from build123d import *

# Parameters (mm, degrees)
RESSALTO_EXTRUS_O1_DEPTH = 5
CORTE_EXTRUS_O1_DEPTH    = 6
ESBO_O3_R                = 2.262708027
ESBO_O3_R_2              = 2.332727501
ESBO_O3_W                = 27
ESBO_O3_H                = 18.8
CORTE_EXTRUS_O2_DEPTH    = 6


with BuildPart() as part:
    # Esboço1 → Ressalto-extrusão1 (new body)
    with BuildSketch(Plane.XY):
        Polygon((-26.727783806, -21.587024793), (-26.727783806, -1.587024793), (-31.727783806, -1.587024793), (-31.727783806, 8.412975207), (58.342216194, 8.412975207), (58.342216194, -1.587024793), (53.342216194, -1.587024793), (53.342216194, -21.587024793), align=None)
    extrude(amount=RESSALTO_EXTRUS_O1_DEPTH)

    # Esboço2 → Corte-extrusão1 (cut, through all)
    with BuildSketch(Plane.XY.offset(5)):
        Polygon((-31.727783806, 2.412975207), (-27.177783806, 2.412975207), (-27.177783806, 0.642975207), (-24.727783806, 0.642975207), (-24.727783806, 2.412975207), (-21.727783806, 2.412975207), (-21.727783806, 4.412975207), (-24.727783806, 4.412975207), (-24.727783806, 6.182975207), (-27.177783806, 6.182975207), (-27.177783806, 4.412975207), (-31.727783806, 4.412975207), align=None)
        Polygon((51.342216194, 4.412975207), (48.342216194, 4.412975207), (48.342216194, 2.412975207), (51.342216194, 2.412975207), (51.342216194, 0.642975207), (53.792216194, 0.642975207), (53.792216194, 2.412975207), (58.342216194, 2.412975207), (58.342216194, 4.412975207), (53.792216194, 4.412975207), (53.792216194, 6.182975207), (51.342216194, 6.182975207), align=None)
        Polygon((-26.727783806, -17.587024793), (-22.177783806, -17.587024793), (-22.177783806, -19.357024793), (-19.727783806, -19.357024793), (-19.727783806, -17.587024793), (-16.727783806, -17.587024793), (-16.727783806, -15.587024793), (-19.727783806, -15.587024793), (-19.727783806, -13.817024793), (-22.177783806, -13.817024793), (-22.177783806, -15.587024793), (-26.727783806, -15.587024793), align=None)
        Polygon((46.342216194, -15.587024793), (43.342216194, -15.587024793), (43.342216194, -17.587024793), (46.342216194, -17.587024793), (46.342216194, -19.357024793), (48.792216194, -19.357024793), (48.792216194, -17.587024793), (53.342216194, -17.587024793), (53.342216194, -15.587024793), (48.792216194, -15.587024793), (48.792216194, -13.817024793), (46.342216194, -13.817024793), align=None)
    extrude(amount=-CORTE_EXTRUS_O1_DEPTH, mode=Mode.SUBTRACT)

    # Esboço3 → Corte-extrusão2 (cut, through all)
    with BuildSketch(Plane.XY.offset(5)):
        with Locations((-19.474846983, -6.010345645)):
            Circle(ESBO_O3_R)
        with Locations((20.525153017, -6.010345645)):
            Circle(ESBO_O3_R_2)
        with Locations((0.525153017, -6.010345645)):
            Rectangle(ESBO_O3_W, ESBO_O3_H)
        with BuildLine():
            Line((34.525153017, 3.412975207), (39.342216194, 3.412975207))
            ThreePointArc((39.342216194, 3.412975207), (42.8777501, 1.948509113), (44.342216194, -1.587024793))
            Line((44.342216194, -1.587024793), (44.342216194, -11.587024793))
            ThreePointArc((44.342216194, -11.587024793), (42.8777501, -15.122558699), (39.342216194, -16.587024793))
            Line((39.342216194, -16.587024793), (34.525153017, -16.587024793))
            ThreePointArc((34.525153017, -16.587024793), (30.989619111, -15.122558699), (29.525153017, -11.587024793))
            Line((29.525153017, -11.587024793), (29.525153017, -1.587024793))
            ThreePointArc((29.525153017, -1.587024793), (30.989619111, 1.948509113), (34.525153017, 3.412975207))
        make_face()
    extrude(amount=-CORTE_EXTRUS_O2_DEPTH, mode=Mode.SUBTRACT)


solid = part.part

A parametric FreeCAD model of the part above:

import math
import FreeCAD as App
import Part
import Sketcher
from FreeCAD import Vector
Q = App.Units.Quantity


def add_polygon(sketch, points):
    """Adds a closed chain of lines whose ends are joined by coincident constraints."""
    first, n = sketch.GeometryCount, len(points)
    for a, b in zip(points, points[1:] + points[:1]):
        sketch.addGeometry(Part.LineSegment(App.Vector(*a, 0), App.Vector(*b, 0)), False)
    for i in range(n):
        sketch.addConstraint(Sketcher.Constraint("Coincident", first + i, 2, first + (i + 1) % n, 1))

doc = App.newDocument("Part")
body = doc.addObject("PartDesign::Body", "Body")

# Sketch on XY plane
sketch1 = body.newObject("Sketcher::SketchObject", "Sketch")
sketch1.AttachmentSupport = (doc.getObject("XY_Plane"), [""])
sketch1.MapMode = "FlatFace"
add_polygon(sketch1, [(-26.727784, -1.587025), (-26.727784, -21.587025), (53.342216, -21.587025), (53.342216, -1.587025), (58.342216, -1.587025), (58.342216, 8.412975), (-31.727784, 8.412975), (-31.727784, -1.587025)])  # lines 0-7
sketch1.addConstraint([
    Sketcher.Constraint("Vertical", 0),
    Sketcher.Constraint("Horizontal", 1),
    Sketcher.Constraint("Vertical", 2),
    Sketcher.Constraint("Horizontal", 3),
    Sketcher.Constraint("Vertical", 4),
    Sketcher.Constraint("Horizontal", 5),
    Sketcher.Constraint("Vertical", 6),
    Sketcher.Constraint("Horizontal", 7),
    Sketcher.Constraint("Horizontal", 3, 2, 6, 2),
    Sketcher.Constraint("Equal", 3, 7),
    Sketcher.Constraint("DistanceX", 3, 1, 3, 2, Q("5 mm")),
    Sketcher.Constraint("DistanceY", 0, 2, 0, 1, Q("20 mm")),
    Sketcher.Constraint("DistanceY", 4, 1, 4, 2, Q("10 mm")),
    Sketcher.Constraint("DistanceX", 1, 1, 1, 2, Q("80.07 mm")),
    Sketcher.Constraint("DistanceX", 0, 2, -1, 1, Q("26.727784 mm")),
    Sketcher.Constraint("DistanceY", 0, 2, -1, 1, Q("21.587025 mm")),
])
pad1 = body.newObject("PartDesign::Pad", "Pad")
pad1.Profile = sketch1
pad1.Length = 5

# Sketch on XY plane
sketch2 = body.newObject("Sketcher::SketchObject", "Sketch001")
sketch2.AttachmentSupport = (doc.getObject("XY_Plane"), [""])
sketch2.MapMode = "FlatFace"
sketch2.AttachmentOffset = App.Placement(Vector(0, 0, 5), App.Rotation())
add_polygon(sketch2, [(-31.727784, 2.412975), (-27.177784, 2.412975), (-27.177784, 0.642975), (-24.727784, 0.642975), (-24.727784, 2.412975), (-21.727784, 2.412975), (-21.727784, 4.412975), (-24.727784, 4.412975), (-24.727784, 6.182975), (-27.177784, 6.182975), (-27.177784, 4.412975), (-31.727784, 4.412975)])  # lines 0-11
add_polygon(sketch2, [(51.342216, 4.412975), (48.342216, 4.412975), (48.342216, 2.412975), (51.342216, 2.412975), (51.342216, 0.642975), (53.792216, 0.642975), (53.792216, 2.412975), (58.342216, 2.412975), (58.342216, 4.412975), (53.792216, 4.412975), (53.792216, 6.182975), (51.342216, 6.182975)])  # lines 12-23
add_polygon(sketch2, [(-26.727784, -17.587025), (-22.177784, -17.587025), (-22.177784, -19.357025), (-19.727784, -19.357025), (-19.727784, -17.587025), (-16.727784, -17.587025), (-16.727784, -15.587025), (-19.727784, -15.587025), (-19.727784, -13.817025), (-22.177784, -13.817025), (-22.177784, -15.587025), (-26.727784, -15.587025)])  # lines 24-35
add_polygon(sketch2, [(46.342216, -15.587025), (43.342216, -15.587025), (43.342216, -17.587025), (46.342216, -17.587025), (46.342216, -19.357025), (48.792216, -19.357025), (48.792216, -17.587025), (53.342216, -17.587025), (53.342216, -15.587025), (48.792216, -15.587025), (48.792216, -13.817025), (46.342216, -13.817025)])  # lines 36-47
sketch2.addConstraint([
    Sketcher.Constraint("Horizontal", 0),
    Sketcher.Constraint("Vertical", 1),
    Sketcher.Constraint("Horizontal", 2),
    Sketcher.Constraint("Vertical", 3),
    Sketcher.Constraint("Horizontal", 4),
    Sketcher.Constraint("Vertical", 5),
    Sketcher.Constraint("Horizontal", 6),
    Sketcher.Constraint("Vertical", 7),
    Sketcher.Constraint("Horizontal", 8),
    Sketcher.Constraint("Vertical", 9),
    Sketcher.Constraint("Horizontal", 10),
    Sketcher.Constraint("Vertical", 11),
    Sketcher.Constraint("Horizontal", 12),
    Sketcher.Constraint("Vertical", 13),
    Sketcher.Constraint("Horizontal", 14),
    Sketcher.Constraint("Vertical", 15),
    Sketcher.Constraint("Horizontal", 16),
    Sketcher.Constraint("Vertical", 17),
    Sketcher.Constraint("Horizontal", 18),
    Sketcher.Constraint("Vertical", 19),
    Sketcher.Constraint("Horizontal", 20),
    Sketcher.Constraint("Vertical", 21),
    Sketcher.Constraint("Horizontal", 22),
    Sketcher.Constraint("Vertical", 23),
    Sketcher.Constraint("Horizontal", 24),
    Sketcher.Constraint("Vertical", 25),
    Sketcher.Constraint("Horizontal", 26),
    Sketcher.Constraint("Vertical", 27),
    Sketcher.Constraint("Horizontal", 28),
    Sketcher.Constraint("Vertical", 29),
    Sketcher.Constraint("Horizontal", 30),
    Sketcher.Constraint("Vertical", 31),
    Sketcher.Constraint("Horizontal", 32),
    Sketcher.Constraint("Vertical", 33),
    Sketcher.Constraint("Horizontal", 34),
    Sketcher.Constraint("Vertical", 35),
    Sketcher.Constraint("Horizontal", 36),
    Sketcher.Constraint("Vertical", 37),
    Sketcher.Constraint("Horizontal", 38),
    Sketcher.Constraint("Vertical", 39),
    Sketcher.Constraint("Horizontal", 40),
    Sketcher.Constraint("Vertical", 41),
    Sketcher.Constraint("Horizontal", 42),
    Sketcher.Constraint("Vertical", 43),
    Sketcher.Constraint("Horizontal", 44),
    Sketcher.Constraint("Vertical", 45),
    Sketcher.Constraint("Horizontal", 46),
    Sketcher.Constraint("Vertical", 47),
    Sketcher.Constraint("Horizontal", 0, 2, 3, 2),
    Sketcher.Constraint("Horizontal", 6, 2, 9, 2),
    Sketcher.Constraint("Horizontal", 10, 2, 12, 2),
    Sketcher.Constraint("Horizontal", 11, 2, 13, 2),
    Sketcher.Constraint("Horizontal", 2, 2, 15, 2),
    Sketcher.Constraint("Horizontal", 14, 2, 17, 2),
    Sketcher.Constraint("Horizontal", 12, 2, 19, 2),
    Sketcher.Constraint("Horizontal", 8, 2, 21, 2),
    Sketcher.Constraint("Horizontal", 24, 2, 27, 2),
    Sketcher.Constraint("Horizontal", 30, 2, 33, 2),
    Sketcher.Constraint("Horizontal", 34, 2, 36, 2),
    Sketcher.Constraint("Horizontal", 35, 2, 37, 2),
    Sketcher.Constraint("Horizontal", 26, 2, 39, 2),
    Sketcher.Constraint("Horizontal", 38, 2, 41, 2),
    Sketcher.Constraint("Horizontal", 36, 2, 43, 2),
    Sketcher.Constraint("Horizontal", 32, 2, 45, 2),
    Sketcher.Constraint("Vertical", 3, 2, 6, 2),
    Sketcher.Constraint("Vertical", 1, 2, 8, 2),
    Sketcher.Constraint("Vertical", 17, 2, 20, 2),
    Sketcher.Constraint("Vertical", 15, 2, 22, 2),
    Sketcher.Constraint("Vertical", 27, 2, 30, 2),
    Sketcher.Constraint("Vertical", 25, 2, 32, 2),
    Sketcher.Constraint("Vertical", 41, 2, 44, 2),
    Sketcher.Constraint("Vertical", 39, 2, 46, 2),
    Sketcher.Constraint("Equal", 6, 12),
    Sketcher.Constraint("Equal", 8, 16),
    Sketcher.Constraint("Equal", 10, 18),
    Sketcher.Constraint("Equal", 20, 24),
    Sketcher.Constraint("Equal", 22, 26),
    Sketcher.Constraint("Equal", 14, 28),
    Sketcher.Constraint("Equal", 30, 36),
    Sketcher.Constraint("Equal", 32, 40),
    Sketcher.Constraint("Equal", 34, 42),
    Sketcher.Constraint("Equal", 3, 7),
    Sketcher.Constraint("Equal", 23, 25),
    Sketcher.Constraint("Equal", 19, 29),
    Sketcher.Constraint("Equal", 27, 31),
    Sketcher.Constraint("DistanceX", 4, 1, 4, 2, Q("3 mm")),
    Sketcher.Constraint("DistanceY", 5, 1, 5, 2, Q("2 mm")),
    Sketcher.Constraint("DistanceX", 10, 2, 6, 2, Q("7 mm")),
    Sketcher.Constraint("DistanceX", 1, 2, 24, 2, Q("5 mm")),
    Sketcher.Constraint("DistanceY", 24, 2, 4, 2, Q("20 mm")),
    Sketcher.Constraint("DistanceX", 36, 2, 15, 2, Q("8 mm")),
    Sketcher.Constraint("DistanceX", 0, 1, 0, 2, Q("4.55 mm")),
    Sketcher.Constraint("DistanceY", 1, 2, 1, 1, Q("1.77 mm")),
    Sketcher.Constraint("DistanceX", 5, 2, 12, 2, Q("70.07 mm")),
    Sketcher.Constraint("DistanceX", 0, 2, -1, 1, Q("27.177784 mm")),
    Sketcher.Constraint("DistanceY", -1, 1, 0, 2, Q("2.412975 mm")),
])
pocket1 = body.newObject("PartDesign::Pocket", "Pocket")
pocket1.Profile = sketch2
pocket1.Type = "ThroughAll"

# Sketch on XY plane
sketch3 = body.newObject("Sketcher::SketchObject", "Sketch002")
sketch3.AttachmentSupport = (doc.getObject("XY_Plane"), [""])
sketch3.MapMode = "FlatFace"
sketch3.AttachmentOffset = App.Placement(Vector(0, 0, 5), App.Rotation())
sketch3.addGeometry(Part.Circle(Vector(-19.474847, -6.010346, 0), Vector(0, 0, 1), 2.262708), False)  # 0
sketch3.addGeometry(Part.Circle(Vector(20.525153, -6.010346, 0), Vector(0, 0, 1), 2.332728), False)  # 1
add_polygon(sketch3, [(-12.974847, 3.389654), (-12.974847, -15.410346), (14.025153, -15.410346), (14.025153, 3.389654)])  # lines 2-5
sketch3.addGeometry(Part.LineSegment(Vector(39.342216, 3.412975, 0), Vector(34.525153, 3.412975, 0)), False)  # 6
sketch3.addGeometry(Part.ArcOfCircle(Part.Circle(Vector(34.525153, -1.587025, 0), Vector(0, 0, 1), 5), math.radians(90), math.radians(180)), False)  # 7
sketch3.addGeometry(Part.LineSegment(Vector(29.525153, -1.587025, 0), Vector(29.525153, -11.587025, 0)), False)  # 8
sketch3.addGeometry(Part.ArcOfCircle(Part.Circle(Vector(34.525153, -11.587025, 0), Vector(0, 0, 1), 5), math.radians(180), math.radians(270)), False)  # 9
sketch3.addGeometry(Part.LineSegment(Vector(34.525153, -16.587025, 0), Vector(39.342216, -16.587025, 0)), False)  # 10
sketch3.addGeometry(Part.ArcOfCircle(Part.Circle(Vector(39.342216, -11.587025, 0), Vector(0, 0, 1), 5), math.radians(-90), math.radians(0)), False)  # 11
sketch3.addGeometry(Part.LineSegment(Vector(44.342216, -11.587025, 0), Vector(44.342216, -1.587025, 0)), False)  # 12
sketch3.addGeometry(Part.ArcOfCircle(Part.Circle(Vector(39.342216, -1.587025, 0), Vector(0, 0, 1), 5), math.radians(0), math.radians(90)), False)  # 13
sketch3.addConstraint([
    Sketcher.Constraint("Tangent", 6, 2, 7, 1),
    Sketcher.Constraint("Tangent", 7, 2, 8, 1),
    Sketcher.Constraint("Tangent", 8, 2, 9, 1),
    Sketcher.Constraint("Tangent", 9, 2, 10, 1),
    Sketcher.Constraint("Tangent", 10, 2, 11, 1),
    Sketcher.Constraint("Tangent", 11, 2, 12, 1),
    Sketcher.Constraint("Tangent", 12, 2, 13, 1),
    Sketcher.Constraint("Tangent", 13, 2, 6, 1),
    Sketcher.Constraint("Vertical", 2),
    Sketcher.Constraint("Horizontal", 3),
    Sketcher.Constraint("Vertical", 4),
    Sketcher.Constraint("Horizontal", 5),
    Sketcher.Constraint("Horizontal", 6),
    Sketcher.Constraint("Vertical", 8),
    Sketcher.Constraint("Horizontal", 10),
    Sketcher.Constraint("Vertical", 12),
    Sketcher.Constraint("Equal", 7, 9),
    Sketcher.Constraint("Equal", 9, 11),
    Sketcher.Constraint("Equal", 11, 13),
    Sketcher.Constraint("Horizontal", 0, 3, 1, 3),
    Sketcher.Constraint("Radius", 7, Q("5 mm")),
    Sketcher.Constraint("DistanceX", 3, 1, 3, 2, Q("27 mm")),
    Sketcher.Constraint("DistanceY", 8, 2, 8, 1, Q("10 mm")),
    Sketcher.Constraint("DistanceY", 2, 2, 2, 1, Q("18.8 mm")),
    Sketcher.Constraint("DistanceX", 0, 3, 1, 3, Q("40 mm")),
    Sketcher.Constraint("DistanceX", 1, 3, 7, 3, Q("14 mm")),
    Sketcher.Constraint("DistanceX", 0, 3, 2, 2, Q("6.5 mm")),
    Sketcher.Constraint("DistanceY", 2, 2, 0, 3, Q("9.4 mm")),
    Sketcher.Constraint("Diameter", 0, Q("4.525416 mm")),
    Sketcher.Constraint("Diameter", 1, Q("4.665455 mm")),
    Sketcher.Constraint("DistanceX", 6, 2, 6, 1, Q("4.817063 mm")),
    Sketcher.Constraint("DistanceY", 1, 3, 7, 3, Q("4.423321 mm")),
    Sketcher.Constraint("DistanceX", 0, 3, -1, 1, Q("19.474847 mm")),
    Sketcher.Constraint("DistanceY", 0, 3, -1, 1, Q("6.010346 mm")),
])
pocket2 = body.newObject("PartDesign::Pocket", "Pocket001")
pocket2.Profile = sketch3
pocket2.Type = "ThroughAll"

doc.recompute()
